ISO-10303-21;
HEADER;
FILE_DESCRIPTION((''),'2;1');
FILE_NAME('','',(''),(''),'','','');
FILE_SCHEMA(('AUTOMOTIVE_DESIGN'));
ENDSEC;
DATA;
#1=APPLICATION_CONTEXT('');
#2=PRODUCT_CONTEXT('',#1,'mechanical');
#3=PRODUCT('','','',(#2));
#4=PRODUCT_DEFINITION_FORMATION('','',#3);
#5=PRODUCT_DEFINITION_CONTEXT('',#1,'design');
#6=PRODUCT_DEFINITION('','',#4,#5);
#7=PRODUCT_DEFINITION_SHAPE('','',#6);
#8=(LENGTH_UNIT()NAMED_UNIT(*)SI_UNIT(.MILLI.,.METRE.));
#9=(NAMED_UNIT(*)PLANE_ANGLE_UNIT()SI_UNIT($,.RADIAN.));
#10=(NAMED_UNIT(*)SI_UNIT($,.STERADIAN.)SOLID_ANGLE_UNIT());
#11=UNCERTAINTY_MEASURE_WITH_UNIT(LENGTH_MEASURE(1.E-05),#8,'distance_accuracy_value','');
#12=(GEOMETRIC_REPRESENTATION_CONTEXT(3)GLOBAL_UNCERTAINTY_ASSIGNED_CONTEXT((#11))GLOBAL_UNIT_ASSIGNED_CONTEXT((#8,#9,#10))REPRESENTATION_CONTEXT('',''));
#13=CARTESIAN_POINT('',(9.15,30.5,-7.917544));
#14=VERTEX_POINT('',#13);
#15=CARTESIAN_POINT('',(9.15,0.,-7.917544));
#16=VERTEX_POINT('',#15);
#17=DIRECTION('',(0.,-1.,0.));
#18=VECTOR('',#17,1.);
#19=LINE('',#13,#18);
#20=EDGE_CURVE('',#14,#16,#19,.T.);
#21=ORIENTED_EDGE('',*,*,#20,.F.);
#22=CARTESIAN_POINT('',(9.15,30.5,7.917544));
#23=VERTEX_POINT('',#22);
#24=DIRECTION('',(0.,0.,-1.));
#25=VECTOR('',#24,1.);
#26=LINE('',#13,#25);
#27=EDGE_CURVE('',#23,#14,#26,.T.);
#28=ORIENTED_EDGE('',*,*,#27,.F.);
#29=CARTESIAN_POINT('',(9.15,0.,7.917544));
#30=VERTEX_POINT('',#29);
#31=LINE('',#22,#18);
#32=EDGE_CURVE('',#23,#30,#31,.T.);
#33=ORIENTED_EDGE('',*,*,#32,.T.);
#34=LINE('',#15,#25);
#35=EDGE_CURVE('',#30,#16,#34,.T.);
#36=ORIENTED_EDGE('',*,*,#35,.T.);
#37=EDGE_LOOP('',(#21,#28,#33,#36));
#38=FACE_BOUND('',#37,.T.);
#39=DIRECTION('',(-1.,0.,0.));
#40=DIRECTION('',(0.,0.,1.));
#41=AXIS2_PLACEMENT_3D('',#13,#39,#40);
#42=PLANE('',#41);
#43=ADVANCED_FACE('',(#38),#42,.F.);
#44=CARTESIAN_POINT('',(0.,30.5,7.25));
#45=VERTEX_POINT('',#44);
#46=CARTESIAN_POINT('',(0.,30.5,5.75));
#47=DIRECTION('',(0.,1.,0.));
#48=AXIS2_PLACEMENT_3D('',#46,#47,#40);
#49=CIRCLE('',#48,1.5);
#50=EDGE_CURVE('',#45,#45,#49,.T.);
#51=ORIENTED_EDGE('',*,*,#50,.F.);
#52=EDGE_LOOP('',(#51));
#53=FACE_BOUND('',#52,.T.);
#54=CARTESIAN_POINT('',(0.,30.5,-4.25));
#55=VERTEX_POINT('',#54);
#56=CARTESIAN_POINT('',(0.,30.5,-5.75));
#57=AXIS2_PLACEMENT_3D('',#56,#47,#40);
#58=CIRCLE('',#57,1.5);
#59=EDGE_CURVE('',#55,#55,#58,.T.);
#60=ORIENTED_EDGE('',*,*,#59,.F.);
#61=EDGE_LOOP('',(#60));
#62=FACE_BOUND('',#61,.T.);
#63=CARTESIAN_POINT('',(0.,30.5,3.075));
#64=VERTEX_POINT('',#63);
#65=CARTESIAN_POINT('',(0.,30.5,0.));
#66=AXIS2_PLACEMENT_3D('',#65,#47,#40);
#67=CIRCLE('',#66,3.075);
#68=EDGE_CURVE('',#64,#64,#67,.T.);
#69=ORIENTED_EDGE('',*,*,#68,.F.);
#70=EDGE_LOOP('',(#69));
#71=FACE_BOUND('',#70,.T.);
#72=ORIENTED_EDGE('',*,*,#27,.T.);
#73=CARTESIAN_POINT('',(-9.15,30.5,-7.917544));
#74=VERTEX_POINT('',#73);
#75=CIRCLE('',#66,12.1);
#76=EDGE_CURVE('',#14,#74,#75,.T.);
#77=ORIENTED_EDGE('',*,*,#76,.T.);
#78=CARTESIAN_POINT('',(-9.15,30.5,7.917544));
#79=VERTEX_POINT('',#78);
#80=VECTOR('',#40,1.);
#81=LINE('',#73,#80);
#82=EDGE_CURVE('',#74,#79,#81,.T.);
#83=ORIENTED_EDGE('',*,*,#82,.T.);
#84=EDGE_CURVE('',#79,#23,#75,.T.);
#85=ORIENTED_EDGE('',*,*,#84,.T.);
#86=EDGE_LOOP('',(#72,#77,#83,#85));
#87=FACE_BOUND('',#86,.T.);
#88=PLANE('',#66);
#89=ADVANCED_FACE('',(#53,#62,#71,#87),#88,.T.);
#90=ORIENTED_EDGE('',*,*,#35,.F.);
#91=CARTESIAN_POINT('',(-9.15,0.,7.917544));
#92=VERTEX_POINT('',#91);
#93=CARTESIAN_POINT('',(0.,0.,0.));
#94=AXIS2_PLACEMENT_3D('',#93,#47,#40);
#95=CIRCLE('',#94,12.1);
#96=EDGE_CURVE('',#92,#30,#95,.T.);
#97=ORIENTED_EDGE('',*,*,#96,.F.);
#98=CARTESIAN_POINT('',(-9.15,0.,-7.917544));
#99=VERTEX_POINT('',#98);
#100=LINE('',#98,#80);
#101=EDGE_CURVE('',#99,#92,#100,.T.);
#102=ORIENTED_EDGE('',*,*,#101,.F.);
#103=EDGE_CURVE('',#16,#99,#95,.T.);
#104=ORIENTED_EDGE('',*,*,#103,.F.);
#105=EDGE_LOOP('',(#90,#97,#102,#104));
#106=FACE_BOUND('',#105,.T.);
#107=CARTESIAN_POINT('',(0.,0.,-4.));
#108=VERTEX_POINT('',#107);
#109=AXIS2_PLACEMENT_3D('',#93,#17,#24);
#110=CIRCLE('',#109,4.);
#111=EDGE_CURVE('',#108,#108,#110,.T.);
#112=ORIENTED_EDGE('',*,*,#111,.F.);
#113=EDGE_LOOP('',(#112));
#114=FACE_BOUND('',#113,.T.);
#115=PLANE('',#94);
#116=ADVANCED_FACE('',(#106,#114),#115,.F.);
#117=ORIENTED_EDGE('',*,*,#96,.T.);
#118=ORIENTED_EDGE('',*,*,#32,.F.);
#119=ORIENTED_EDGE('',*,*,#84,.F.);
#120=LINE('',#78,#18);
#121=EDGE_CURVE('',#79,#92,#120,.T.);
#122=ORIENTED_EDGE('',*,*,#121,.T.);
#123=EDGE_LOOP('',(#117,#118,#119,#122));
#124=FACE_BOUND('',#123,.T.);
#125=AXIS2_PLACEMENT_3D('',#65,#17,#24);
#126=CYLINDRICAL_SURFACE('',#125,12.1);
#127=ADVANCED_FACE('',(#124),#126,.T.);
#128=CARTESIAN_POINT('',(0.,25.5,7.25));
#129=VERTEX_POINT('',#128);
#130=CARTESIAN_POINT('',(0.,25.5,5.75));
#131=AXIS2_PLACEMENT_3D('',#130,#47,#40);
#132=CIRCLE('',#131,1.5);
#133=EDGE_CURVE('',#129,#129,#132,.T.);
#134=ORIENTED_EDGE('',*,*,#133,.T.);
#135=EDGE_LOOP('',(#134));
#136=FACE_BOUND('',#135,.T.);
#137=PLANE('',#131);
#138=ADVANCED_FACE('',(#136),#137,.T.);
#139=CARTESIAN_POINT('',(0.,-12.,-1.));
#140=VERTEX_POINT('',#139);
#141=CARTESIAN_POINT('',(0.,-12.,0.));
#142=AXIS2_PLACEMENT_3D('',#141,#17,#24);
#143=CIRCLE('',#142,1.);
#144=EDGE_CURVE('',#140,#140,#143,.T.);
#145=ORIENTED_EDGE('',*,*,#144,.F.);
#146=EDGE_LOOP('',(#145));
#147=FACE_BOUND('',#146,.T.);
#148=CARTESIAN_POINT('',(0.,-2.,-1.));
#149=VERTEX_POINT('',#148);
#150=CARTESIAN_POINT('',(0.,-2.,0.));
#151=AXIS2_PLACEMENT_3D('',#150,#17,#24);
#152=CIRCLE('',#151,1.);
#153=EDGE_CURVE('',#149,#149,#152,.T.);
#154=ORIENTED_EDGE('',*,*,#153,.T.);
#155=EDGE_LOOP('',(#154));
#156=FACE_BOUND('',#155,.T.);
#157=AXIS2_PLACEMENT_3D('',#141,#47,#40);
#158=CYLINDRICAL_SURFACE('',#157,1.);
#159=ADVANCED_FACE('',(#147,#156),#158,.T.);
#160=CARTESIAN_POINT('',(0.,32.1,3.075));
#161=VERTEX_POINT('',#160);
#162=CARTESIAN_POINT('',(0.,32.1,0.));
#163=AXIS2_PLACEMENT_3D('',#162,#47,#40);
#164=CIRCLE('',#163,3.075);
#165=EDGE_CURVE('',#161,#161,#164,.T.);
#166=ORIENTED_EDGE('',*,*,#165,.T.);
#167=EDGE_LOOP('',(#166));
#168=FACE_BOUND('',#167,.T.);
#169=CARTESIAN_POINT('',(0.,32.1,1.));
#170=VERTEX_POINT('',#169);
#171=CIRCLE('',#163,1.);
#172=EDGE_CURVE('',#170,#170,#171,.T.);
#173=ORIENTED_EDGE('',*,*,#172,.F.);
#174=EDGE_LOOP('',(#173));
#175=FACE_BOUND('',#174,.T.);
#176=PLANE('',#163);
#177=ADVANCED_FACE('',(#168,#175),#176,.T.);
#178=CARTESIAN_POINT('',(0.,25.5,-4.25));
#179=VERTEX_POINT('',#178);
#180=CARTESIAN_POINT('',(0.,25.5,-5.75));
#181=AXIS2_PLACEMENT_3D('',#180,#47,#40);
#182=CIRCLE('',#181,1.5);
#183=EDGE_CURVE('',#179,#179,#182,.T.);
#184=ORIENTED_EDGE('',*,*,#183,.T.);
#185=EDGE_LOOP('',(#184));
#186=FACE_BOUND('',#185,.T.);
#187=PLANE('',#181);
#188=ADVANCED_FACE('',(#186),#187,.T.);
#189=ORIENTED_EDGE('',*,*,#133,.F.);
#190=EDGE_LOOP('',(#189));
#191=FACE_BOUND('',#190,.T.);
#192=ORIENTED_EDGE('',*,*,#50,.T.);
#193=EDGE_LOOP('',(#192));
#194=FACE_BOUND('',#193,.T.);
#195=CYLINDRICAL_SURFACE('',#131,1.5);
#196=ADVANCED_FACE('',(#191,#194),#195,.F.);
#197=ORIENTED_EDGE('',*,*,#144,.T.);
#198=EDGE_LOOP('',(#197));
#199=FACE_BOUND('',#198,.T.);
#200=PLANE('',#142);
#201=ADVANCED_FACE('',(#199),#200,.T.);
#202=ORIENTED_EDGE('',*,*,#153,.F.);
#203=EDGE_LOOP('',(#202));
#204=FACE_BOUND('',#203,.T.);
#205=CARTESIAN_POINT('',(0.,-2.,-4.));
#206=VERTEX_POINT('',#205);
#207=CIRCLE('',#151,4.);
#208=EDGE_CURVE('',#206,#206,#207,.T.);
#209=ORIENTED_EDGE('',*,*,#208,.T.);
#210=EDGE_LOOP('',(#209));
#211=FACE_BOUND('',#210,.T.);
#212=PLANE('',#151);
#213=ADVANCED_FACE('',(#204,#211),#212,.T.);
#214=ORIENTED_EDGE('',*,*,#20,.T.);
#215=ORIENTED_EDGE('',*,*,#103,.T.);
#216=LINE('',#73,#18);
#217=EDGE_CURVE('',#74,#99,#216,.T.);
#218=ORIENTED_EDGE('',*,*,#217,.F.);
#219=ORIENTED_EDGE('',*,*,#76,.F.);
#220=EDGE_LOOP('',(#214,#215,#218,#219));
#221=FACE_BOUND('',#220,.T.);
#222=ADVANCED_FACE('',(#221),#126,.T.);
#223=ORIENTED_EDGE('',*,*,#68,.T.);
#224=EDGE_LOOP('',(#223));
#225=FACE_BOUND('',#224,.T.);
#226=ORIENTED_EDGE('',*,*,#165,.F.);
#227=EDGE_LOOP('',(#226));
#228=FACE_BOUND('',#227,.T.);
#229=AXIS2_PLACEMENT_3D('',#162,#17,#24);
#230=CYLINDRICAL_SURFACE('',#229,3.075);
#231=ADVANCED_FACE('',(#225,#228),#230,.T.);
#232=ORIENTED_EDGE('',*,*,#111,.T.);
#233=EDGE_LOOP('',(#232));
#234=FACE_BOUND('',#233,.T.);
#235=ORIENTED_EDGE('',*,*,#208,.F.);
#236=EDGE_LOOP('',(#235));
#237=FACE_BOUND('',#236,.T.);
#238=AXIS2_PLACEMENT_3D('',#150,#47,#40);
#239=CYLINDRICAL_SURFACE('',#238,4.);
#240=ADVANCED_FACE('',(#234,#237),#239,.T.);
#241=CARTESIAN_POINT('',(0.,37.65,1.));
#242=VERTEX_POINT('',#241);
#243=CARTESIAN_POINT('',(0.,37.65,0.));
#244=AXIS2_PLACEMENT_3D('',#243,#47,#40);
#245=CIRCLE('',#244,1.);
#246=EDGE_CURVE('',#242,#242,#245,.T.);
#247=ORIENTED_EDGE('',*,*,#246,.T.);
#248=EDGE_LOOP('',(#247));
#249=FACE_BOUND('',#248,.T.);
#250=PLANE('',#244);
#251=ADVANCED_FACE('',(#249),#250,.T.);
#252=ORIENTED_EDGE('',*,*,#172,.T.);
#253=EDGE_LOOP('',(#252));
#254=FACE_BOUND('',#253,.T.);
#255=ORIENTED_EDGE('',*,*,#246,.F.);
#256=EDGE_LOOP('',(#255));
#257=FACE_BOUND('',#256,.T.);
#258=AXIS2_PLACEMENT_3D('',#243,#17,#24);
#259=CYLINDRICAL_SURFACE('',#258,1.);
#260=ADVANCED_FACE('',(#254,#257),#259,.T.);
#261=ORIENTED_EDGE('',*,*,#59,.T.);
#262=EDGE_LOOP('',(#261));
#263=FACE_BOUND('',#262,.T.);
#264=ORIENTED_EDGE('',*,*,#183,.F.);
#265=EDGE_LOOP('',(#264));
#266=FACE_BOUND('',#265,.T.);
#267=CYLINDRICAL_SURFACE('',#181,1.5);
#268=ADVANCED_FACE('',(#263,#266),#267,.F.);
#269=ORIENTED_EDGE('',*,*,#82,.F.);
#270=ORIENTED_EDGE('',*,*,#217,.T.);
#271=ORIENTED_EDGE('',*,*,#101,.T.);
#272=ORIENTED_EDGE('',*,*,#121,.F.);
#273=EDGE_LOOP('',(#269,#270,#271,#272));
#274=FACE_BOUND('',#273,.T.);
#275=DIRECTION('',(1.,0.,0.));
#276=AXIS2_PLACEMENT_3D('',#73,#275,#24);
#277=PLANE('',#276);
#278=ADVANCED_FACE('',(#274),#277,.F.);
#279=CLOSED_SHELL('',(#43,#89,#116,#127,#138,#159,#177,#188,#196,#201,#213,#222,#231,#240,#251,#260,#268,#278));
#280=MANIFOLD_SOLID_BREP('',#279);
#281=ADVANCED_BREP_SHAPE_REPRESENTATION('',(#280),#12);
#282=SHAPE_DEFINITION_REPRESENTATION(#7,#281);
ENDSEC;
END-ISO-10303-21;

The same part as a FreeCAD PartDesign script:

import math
import FreeCAD as App
import Part
import Sketcher
from FreeCAD import Vector
Q = App.Units.Quantity

doc = App.newDocument("Part")
body = doc.addObject("PartDesign::Body", "Body")

sketch1 = doc.addObject("Sketcher::SketchObject", "Sketch")
body.addObject(sketch1)
sketch1.AttachmentSupport = (doc.XZ_Plane, [""])
sketch1.MapMode = "FlatFace"
sketch1.addGeometry([
    Part.LineSegment(Vector(-9, -8, 0), Vector(-9, 8, 0)),
    Part.ArcOfCircle(Part.Circle(Vector(0, 0, 0), Vector(0, 0, 1), 12), math.radians(41), math.radians(139)),
    Part.LineSegment(Vector(9, 8, 0), Vector(9, -8, 0)),
    Part.ArcOfCircle(Part.Circle(Vector(0, 0, 0), Vector(0, 0, 1), 12), math.radians(-139), math.radians(-41)),
], False)
sketch1.addConstraint([
    Sketcher.Constraint("Coincident", 0, 2, 1, 2),
    Sketcher.Constraint("Coincident", 1, 1, 2, 1),
    Sketcher.Constraint("Coincident", 2, 2, 3, 2),
    Sketcher.Constraint("Coincident", 3, 1, 0, 1),
    Sketcher.Constraint("Vertical", 0),
    Sketcher.Constraint("Vertical", 2),
    Sketcher.Constraint("Coincident", 1, 3, -1, 1),
    Sketcher.Constraint("Coincident", 3, 3, -1, 1),
    Sketcher.Constraint("Equal", 1, 3),
    Sketcher.Constraint("Horizontal", 0, 2, 1, 1),
    Sketcher.Constraint("Radius", 1, Q("12.1 mm")),
    Sketcher.Constraint("DistanceX", 0, 2, 1, 1, Q("18.3 mm")),
])
pad1 = doc.addObject("PartDesign::Pad", "Pad")
body.addObject(pad1)
pad1.Profile = sketch1
pad1.Length = 30.5
pad1.Reversed = True

sketch2 = doc.addObject("Sketcher::SketchObject", "Sketch001")
body.addObject(sketch2)
sketch2.AttachmentSupport = (doc.XZ_Plane, [""])
sketch2.MapMode = "FlatFace"
sketch2.AttachmentOffset = App.Placement(Vector(0, 0, -30.5), App.Rotation())
sketch2.addGeometry([
    Part.Circle(Vector(0, 0, 0), Vector(0, 0, 1), 3.1),
    Part.Circle(Vector(0, 0, 0), Vector(0, 0, 1), 1),
], False)
sketch2.addConstraint([
    Sketcher.Constraint("Coincident", 0, 3, -1, 1),
    Sketcher.Constraint("Coincident", 1, 3, -1, 1),
    Sketcher.Constraint("Diameter", 1, Q("2 mm")),
    Sketcher.Constraint("Diameter", 0, Q("6.15 mm")),
])
pad2 = doc.addObject("PartDesign::Pad", "Pad001")
body.addObject(pad2)
pad2.Profile = sketch2
pad2.Length = 1.6
pad2.Reversed = True

sketch3 = doc.addObject("Sketcher::SketchObject", "Sketch002")
body.addObject(sketch3)
sketch3.AttachmentSupport = (doc.XZ_Plane, [""])
sketch3.MapMode = "FlatFace"
sketch3.AttachmentOffset = App.Placement(Vector(0, 0, -30.5), App.Rotation())
sketch3.addGeometry(Part.Circle(Vector(0, 0, 0), Vector(0, 0, 1), 1), False)
sketch3.addConstraint([
    Sketcher.Constraint("Coincident", 0, 3, -1, 1),
    Sketcher.Constraint("Diameter", 0, Q("2 mm")),
])
pad3 = doc.addObject("PartDesign::Pad", "Pad002")
body.addObject(pad3)
pad3.Profile = sketch3
pad3.Length = 7.15
pad3.Reversed = True

sketch4 = doc.addObject("Sketcher::SketchObject", "Sketch003")
body.addObject(sketch4)
sketch4.AttachmentSupport = (doc.XZ_Plane, [""])
sketch4.MapMode = "FlatFace"
sketch4.AttachmentOffset = App.Placement(Vector(0, 0, 2), App.Rotation())
sketch4.addGeometry([
    Part.Circle(Vector(0, 0, 0), Vector(0, 0, 1), 4),
    Part.Circle(Vector(0, 0, 0), Vector(0, 0, 1), 1),
], False)
sketch4.addConstraint([
    Sketcher.Constraint("Coincident", 0, 3, -1, 1),
    Sketcher.Constraint("Coincident", 1, 3, -1, 1),
    Sketcher.Constraint("Diameter", 0, Q("8 mm")),
    Sketcher.Constraint("Diameter", 1, Q("2 mm")),
])
pad4 = doc.addObject("PartDesign::Pad", "Pad003")
body.addObject(pad4)
pad4.Profile = sketch4
pad4.Length = 2
pad4.Reversed = True

sketch5 = doc.addObject("Sketcher::SketchObject", "Sketch004")
body.addObject(sketch5)
sketch5.AttachmentSupport = (doc.XZ_Plane, [""])
sketch5.MapMode = "FlatFace"
sketch5.AttachmentOffset = App.Placement(Vector(0, 0, 12), App.Rotation())
sketch5.addGeometry(Part.Circle(Vector(0, 0, 0), Vector(0, 0, 1), 1), False)
sketch5.addConstraint([
    Sketcher.Constraint("Coincident", 0, 3, -1, 1),
    Sketcher.Constraint("Diameter", 0, Q("2 mm")),
])
pad5 = doc.addObject("PartDesign::Pad", "Pad004")
body.addObject(pad5)
pad5.Profile = sketch5
pad5.Length = 12
pad5.Reversed = True

sketch6 = doc.addObject("Sketcher::SketchObject", "Sketch005")
body.addObject(sketch6)
sketch6.AttachmentSupport = (doc.XZ_Plane, [""])
sketch6.MapMode = "FlatFace"
sketch6.AttachmentOffset = App.Placement(Vector(0, 0, -30.5), App.Rotation())
sketch6.addGeometry([
    Part.Circle(Vector(0, -5.8, 0), Vector(0, 0, 1), 1.5),
    Part.Circle(Vector(0, 5.8, 0), Vector(0, 0, 1), 1.5),
], False)
sketch6.addConstraint([
    Sketcher.Constraint("Equal", 0, 1),
    Sketcher.Constraint("Symmetric", 0, 3, 1, 3, -1, 1),
    Sketcher.Constraint("PointOnObject", 0, 3, -2),
    Sketcher.Constraint("Diameter", 0, Q("3 mm")),
    Sketcher.Constraint("DistanceY", 0, 3, 1, 3, Q("11.5 mm")),
])
pocket1 = doc.addObject("PartDesign::Pocket", "Pocket")
body.addObject(pocket1)
pocket1.Profile = sketch6
pocket1.Length = 5
pocket1.Reversed = True

doc.recompute()
